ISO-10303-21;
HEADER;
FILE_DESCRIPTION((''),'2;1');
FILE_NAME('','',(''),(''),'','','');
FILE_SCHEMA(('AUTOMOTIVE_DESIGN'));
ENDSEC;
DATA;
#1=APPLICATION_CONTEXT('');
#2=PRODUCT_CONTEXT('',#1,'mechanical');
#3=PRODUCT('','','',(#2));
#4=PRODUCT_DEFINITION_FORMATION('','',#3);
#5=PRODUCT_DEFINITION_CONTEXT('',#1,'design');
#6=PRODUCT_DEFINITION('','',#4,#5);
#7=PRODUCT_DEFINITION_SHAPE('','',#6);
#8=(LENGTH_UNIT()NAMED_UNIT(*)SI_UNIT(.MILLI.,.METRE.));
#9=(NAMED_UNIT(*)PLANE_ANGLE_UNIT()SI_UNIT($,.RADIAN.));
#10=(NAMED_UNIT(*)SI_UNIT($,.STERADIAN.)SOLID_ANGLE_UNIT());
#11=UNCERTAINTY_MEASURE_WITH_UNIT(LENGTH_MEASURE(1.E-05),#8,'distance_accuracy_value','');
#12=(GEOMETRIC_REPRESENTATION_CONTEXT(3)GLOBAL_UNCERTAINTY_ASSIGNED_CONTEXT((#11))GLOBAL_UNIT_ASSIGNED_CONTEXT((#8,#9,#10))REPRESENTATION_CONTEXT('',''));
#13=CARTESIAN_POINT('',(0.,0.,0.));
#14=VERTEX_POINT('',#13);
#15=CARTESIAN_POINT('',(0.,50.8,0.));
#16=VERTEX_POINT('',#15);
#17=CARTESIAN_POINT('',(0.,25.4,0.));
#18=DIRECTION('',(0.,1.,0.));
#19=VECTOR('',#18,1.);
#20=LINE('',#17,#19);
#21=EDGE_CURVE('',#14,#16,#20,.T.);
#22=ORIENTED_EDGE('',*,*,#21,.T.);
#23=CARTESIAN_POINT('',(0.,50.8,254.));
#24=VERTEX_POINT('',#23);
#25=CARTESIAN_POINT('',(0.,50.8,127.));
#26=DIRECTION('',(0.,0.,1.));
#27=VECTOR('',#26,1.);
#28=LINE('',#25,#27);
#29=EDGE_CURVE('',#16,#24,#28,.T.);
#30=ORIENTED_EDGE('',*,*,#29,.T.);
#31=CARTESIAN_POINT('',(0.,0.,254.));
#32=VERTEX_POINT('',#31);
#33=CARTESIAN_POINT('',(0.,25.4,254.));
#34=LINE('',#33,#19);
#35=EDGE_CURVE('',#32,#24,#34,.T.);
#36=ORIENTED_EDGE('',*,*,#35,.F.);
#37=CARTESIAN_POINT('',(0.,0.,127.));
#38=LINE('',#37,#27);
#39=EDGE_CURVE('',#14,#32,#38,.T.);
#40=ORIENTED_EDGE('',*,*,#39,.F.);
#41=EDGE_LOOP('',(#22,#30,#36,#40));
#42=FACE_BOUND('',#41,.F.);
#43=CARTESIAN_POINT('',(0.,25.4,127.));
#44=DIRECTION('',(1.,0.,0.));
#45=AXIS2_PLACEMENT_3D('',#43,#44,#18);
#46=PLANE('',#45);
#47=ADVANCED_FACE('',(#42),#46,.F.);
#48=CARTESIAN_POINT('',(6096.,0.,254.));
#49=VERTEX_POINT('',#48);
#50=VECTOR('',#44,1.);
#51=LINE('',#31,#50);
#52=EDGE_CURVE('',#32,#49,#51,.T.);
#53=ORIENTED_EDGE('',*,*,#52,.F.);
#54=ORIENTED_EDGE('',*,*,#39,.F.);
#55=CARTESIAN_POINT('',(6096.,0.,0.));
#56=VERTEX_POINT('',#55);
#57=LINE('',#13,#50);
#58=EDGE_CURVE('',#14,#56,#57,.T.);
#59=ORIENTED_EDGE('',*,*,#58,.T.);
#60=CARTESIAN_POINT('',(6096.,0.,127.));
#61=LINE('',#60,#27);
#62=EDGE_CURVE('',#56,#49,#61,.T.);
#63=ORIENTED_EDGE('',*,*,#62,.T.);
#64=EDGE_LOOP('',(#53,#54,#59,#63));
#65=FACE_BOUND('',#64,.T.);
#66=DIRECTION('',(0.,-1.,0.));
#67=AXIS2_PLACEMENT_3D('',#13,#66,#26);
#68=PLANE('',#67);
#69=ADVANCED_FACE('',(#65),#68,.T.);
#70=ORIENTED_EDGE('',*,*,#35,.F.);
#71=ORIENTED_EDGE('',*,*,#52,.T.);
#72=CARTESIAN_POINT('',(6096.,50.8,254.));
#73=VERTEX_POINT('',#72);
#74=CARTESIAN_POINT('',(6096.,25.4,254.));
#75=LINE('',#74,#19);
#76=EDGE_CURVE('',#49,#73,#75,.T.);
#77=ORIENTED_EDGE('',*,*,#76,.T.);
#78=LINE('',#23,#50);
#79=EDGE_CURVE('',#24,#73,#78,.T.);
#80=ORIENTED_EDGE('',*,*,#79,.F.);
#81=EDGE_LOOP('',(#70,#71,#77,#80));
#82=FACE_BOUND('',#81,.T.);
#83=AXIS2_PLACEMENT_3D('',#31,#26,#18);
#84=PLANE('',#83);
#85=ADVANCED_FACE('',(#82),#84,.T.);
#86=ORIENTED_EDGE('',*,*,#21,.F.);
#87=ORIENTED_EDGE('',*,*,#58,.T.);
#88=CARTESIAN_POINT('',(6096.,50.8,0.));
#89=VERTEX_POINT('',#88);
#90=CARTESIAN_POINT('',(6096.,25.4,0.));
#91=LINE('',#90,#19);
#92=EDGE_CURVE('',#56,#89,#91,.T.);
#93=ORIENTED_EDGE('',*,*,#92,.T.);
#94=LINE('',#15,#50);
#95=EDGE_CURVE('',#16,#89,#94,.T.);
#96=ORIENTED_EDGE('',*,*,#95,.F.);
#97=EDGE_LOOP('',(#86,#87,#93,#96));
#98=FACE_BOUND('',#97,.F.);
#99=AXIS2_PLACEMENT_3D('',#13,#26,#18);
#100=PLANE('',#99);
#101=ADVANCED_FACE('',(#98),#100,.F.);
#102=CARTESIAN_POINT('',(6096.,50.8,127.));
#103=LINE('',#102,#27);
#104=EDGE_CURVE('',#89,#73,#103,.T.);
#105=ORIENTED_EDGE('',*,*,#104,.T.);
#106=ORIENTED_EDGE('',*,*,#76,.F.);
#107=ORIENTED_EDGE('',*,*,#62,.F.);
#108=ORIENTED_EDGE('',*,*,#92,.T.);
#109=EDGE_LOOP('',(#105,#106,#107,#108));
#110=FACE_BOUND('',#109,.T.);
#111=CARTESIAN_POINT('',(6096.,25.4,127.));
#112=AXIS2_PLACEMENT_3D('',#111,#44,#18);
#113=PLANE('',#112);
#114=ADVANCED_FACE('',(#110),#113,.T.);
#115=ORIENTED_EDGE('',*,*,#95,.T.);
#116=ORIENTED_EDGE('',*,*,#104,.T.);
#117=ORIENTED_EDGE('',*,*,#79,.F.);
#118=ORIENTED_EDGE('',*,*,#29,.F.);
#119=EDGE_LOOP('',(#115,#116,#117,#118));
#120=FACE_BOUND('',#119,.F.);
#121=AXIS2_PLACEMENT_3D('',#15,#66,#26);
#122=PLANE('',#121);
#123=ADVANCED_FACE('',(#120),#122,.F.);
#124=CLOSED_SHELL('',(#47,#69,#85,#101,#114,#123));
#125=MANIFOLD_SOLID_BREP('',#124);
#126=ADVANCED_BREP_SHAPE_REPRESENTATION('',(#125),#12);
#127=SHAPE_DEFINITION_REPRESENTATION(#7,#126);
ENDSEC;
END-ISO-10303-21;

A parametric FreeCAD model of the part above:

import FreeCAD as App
import Part
import Sketcher
from FreeCAD import Vector
Q = App.Units.Quantity


def add_polygon(sketch, points):
    """Adds a closed chain of lines whose ends are joined by coincident constraints."""
    first, n = sketch.GeometryCount, len(points)
    for a, b in zip(points, points[1:] + points[:1]):
        sketch.addGeometry(Part.LineSegment(App.Vector(*a, 0), App.Vector(*b, 0)), False)
    for i in range(n):
        sketch.addConstraint(Sketcher.Constraint("Coincident", first + i, 2, first + (i + 1) % n, 1))

doc = App.newDocument("Part")
params = doc.addObject("Spreadsheet::Sheet", "Params")
for row, (alias, value) in enumerate([
    ("sketch1_width", "2 in"),
    ("sketch1_height", "10 in"),
    ("pad1_length", "240 in"),
], start=1):
    params.set(f"A{row}", alias)
    params.set(f"B{row}", "=" + value)
    params.setAlias(f"B{row}", alias)

body = doc.addObject("PartDesign::Body", "Body")

sketch1 = body.newObject("Sketcher::SketchObject", "Sketch")
sketch1.AttachmentSupport = (doc.getObject("YZ_Plane"), [""])
sketch1.MapMode = "FlatFace"
add_polygon(sketch1, [(0, 254), (0, 0), (51, 0), (51, 254)])
sketch1.addConstraint([
    Sketcher.Constraint("Vertical", 0),
    Sketcher.Constraint("Horizontal", 1),
    Sketcher.Constraint("Vertical", 2),
    Sketcher.Constraint("Horizontal", 3),
    Sketcher.Constraint("Coincident", 0, 2, -1, 1),
    Sketcher.Constraint("DistanceX", 1, 1, 1, 2, Q("2 in")),
    Sketcher.Constraint("DistanceY", 0, 2, 0, 1, Q("10 in")),
])
sketch1.setExpression("Constraints[9]", "Params.sketch1_width")
sketch1.setExpression("Constraints[10]", "Params.sketch1_height")
pad1 = body.newObject("PartDesign::Pad", "Pad")
pad1.Profile = sketch1
pad1.setExpression("Length", "Params.pad1_length")

doc.recompute()
